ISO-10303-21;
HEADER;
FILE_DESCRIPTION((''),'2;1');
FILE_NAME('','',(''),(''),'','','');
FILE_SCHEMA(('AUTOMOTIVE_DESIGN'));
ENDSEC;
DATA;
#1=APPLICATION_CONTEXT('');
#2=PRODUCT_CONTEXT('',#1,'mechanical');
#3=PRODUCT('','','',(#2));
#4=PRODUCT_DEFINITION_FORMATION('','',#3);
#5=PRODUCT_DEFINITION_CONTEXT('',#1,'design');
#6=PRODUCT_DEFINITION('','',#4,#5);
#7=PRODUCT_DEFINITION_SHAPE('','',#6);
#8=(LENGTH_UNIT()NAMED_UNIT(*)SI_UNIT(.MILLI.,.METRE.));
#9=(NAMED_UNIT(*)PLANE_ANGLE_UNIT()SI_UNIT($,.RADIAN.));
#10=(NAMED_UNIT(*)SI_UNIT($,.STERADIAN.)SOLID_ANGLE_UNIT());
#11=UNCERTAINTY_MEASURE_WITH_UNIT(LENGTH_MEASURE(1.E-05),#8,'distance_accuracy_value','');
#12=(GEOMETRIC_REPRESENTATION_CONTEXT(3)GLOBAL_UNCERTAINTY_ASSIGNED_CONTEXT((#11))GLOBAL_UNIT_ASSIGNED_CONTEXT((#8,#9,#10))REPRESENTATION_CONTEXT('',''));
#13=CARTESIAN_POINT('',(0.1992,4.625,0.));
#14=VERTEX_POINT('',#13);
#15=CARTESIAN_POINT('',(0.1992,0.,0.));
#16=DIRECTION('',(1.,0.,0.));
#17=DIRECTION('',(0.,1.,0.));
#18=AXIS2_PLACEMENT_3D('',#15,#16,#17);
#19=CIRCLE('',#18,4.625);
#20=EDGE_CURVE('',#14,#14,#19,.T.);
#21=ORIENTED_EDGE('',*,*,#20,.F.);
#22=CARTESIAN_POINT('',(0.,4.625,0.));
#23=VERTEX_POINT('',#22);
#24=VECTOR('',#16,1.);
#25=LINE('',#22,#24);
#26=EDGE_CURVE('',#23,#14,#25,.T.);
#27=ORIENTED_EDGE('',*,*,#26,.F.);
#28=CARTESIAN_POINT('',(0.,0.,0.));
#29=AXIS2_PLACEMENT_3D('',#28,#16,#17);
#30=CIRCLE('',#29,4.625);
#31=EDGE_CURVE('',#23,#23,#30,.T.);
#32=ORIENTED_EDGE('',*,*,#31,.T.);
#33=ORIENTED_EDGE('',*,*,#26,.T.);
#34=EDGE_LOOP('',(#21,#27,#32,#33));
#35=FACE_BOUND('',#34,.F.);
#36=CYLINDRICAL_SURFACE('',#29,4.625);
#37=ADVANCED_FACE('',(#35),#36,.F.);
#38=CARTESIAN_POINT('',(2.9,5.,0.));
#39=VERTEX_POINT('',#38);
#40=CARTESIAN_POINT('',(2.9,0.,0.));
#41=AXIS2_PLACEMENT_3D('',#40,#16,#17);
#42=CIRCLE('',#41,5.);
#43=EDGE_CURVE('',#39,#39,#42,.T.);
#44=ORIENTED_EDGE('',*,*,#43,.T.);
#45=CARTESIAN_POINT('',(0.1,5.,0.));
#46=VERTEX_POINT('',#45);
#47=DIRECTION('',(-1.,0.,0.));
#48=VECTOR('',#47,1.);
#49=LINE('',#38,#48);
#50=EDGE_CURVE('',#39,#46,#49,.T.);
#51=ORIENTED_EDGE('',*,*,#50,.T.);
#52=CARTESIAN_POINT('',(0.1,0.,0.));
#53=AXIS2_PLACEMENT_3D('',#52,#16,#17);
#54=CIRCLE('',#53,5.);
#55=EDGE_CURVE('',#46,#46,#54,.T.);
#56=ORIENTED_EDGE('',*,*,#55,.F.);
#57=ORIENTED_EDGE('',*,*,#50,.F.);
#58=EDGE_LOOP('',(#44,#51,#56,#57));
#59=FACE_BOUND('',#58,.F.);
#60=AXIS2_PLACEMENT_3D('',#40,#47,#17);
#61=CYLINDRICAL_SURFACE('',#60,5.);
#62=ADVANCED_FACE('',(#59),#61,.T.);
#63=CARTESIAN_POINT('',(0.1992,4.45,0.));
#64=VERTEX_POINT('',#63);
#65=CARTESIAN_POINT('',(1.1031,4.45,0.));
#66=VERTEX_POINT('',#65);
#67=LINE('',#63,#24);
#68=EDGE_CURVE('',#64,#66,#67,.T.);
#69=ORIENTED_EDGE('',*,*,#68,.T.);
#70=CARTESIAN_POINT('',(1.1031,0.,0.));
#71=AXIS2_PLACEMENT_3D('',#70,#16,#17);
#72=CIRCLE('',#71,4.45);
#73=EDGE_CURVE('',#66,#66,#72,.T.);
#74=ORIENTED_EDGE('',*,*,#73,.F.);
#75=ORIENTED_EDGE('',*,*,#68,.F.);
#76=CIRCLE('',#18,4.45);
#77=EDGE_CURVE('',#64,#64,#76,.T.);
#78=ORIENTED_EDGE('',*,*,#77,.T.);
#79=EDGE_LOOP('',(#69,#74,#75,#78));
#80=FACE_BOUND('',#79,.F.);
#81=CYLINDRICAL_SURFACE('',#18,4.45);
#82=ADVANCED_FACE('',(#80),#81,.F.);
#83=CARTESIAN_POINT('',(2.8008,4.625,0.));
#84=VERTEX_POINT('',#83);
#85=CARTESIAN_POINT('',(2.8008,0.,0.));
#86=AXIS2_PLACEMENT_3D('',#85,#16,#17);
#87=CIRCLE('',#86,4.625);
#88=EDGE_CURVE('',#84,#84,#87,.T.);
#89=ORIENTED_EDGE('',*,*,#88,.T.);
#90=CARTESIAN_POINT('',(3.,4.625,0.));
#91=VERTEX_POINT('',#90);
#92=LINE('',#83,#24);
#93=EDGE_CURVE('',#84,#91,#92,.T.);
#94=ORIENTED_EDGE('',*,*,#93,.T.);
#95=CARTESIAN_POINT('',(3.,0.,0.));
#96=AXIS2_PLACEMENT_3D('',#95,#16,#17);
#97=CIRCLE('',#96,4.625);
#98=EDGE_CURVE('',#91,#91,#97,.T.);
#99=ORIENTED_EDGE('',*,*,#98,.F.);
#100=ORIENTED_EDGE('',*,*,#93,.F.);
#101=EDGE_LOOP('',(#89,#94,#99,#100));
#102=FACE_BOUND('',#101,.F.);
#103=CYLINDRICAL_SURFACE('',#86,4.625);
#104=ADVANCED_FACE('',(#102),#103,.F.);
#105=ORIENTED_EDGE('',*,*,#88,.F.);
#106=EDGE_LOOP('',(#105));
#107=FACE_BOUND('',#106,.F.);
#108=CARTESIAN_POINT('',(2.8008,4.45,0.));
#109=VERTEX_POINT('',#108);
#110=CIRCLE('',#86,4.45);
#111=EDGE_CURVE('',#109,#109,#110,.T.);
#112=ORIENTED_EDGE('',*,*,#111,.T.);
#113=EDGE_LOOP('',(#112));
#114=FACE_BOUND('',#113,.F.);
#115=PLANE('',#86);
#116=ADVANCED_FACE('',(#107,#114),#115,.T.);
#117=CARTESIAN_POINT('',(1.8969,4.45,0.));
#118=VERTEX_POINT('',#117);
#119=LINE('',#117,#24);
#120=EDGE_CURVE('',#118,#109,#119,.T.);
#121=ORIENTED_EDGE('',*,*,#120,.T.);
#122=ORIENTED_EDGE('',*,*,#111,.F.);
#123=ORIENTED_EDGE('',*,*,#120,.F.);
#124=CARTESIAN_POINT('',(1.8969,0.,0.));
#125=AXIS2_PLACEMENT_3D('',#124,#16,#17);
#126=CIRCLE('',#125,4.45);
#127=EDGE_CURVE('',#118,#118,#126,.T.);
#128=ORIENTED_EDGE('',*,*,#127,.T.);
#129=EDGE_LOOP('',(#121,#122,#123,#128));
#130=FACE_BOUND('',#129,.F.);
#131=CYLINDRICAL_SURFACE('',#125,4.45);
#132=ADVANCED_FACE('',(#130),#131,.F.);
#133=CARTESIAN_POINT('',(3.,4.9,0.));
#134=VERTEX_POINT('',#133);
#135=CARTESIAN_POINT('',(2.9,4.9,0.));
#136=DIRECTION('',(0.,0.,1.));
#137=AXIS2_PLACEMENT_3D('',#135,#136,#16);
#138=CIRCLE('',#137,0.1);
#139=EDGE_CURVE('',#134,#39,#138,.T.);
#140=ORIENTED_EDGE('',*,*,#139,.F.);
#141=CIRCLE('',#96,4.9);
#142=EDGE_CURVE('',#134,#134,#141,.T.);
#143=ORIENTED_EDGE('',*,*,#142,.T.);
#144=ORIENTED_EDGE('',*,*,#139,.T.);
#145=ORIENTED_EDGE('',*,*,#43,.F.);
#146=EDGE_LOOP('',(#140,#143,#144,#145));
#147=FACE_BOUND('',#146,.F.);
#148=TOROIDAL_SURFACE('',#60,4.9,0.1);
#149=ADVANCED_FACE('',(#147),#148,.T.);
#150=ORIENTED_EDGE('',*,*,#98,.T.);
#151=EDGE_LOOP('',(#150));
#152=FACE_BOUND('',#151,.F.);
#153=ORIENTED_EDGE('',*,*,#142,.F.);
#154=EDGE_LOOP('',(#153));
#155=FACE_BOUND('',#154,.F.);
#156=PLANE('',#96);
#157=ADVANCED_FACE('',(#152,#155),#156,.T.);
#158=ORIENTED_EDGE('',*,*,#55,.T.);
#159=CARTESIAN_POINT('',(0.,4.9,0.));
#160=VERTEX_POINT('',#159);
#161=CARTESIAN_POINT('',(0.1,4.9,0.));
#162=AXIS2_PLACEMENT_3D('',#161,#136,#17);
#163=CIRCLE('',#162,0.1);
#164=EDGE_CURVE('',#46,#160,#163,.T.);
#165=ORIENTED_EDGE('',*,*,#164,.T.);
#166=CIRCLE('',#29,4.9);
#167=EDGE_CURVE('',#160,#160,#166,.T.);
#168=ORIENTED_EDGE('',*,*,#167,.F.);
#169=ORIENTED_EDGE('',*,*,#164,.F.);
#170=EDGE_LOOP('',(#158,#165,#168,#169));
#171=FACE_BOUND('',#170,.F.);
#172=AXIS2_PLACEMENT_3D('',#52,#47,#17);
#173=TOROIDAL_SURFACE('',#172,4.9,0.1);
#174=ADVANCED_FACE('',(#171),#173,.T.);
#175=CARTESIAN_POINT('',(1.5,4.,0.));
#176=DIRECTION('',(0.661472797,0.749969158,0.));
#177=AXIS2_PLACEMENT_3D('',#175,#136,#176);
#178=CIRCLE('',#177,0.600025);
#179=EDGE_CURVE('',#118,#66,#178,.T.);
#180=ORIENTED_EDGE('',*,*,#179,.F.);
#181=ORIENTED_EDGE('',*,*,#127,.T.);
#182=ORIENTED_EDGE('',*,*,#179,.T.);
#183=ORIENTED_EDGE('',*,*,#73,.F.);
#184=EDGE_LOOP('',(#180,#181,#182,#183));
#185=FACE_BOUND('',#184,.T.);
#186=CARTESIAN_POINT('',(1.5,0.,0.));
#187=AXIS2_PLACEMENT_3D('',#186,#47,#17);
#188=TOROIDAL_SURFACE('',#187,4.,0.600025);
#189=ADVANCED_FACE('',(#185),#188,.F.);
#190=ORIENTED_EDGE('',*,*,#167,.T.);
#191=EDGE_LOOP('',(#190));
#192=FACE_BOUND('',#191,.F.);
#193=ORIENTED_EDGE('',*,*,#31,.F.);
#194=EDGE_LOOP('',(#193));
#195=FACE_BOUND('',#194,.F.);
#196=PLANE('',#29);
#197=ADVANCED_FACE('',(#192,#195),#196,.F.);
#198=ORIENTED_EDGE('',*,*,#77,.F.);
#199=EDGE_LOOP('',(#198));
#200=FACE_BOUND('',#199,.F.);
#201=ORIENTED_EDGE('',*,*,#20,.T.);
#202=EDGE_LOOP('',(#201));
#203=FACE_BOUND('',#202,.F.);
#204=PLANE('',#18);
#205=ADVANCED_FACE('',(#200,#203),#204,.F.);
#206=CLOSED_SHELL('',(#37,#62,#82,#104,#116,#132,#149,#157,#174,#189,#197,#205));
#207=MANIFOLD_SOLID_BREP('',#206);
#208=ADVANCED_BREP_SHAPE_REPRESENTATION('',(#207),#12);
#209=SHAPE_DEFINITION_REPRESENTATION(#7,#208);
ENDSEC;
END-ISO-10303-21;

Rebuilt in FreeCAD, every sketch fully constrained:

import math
import FreeCAD as App
import Part
import Sketcher

doc = App.newDocument("Part")
params = doc.addObject("Spreadsheet::Sheet", "Params")
for row, (alias, value) in enumerate([
    ("sketch1_radius", "0.6 mm"),
    ("sketch1_radius2", "0.1 mm"),
    ("sketch1_width", "2.8 mm"),
    ("revolution_angle", "360 deg"),
], start=1):
    params.set(f"A{row}", alias)
    params.set(f"B{row}", "=" + value)
    params.setAlias(f"B{row}", alias)

body = doc.addObject("PartDesign::Body", "Body")

sketch1 = body.newObject("Sketcher::SketchObject", "Sketch")
sketch1.AttachmentSupport = (doc.getObject("XY_Plane"), [""])
sketch1.MapMode = "FlatFace"
sketch1.addGeometry(Part.LineSegment(App.Vector(0, 4.9, 0), App.Vector(0, 4.62, 0)), False)
sketch1.addGeometry(Part.LineSegment(App.Vector(0, 4.62, 0), App.Vector(0.2, 4.62, 0)), False)
sketch1.addGeometry(Part.LineSegment(App.Vector(0.2, 4.62, 0), App.Vector(0.2, 4.45, 0)), False)
sketch1.addGeometry(Part.LineSegment(App.Vector(0.2, 4.45, 0), App.Vector(1.1, 4.45, 0)), False)
sketch1.addGeometry(Part.ArcOfCircle(Part.Circle(App.Vector(1.5, 4, 0), App.Vector(0, 0, 1), 0.6), math.radians(49), math.radians(131)), False)
sketch1.addGeometry(Part.LineSegment(App.Vector(1.9, 4.45, 0), App.Vector(2.8, 4.45, 0)), False)
sketch1.addGeometry(Part.LineSegment(App.Vector(2.8, 4.45, 0), App.Vector(2.8, 4.62, 0)), False)
sketch1.addGeometry(Part.LineSegment(App.Vector(2.8, 4.62, 0), App.Vector(3, 4.62, 0)), False)
sketch1.addGeometry(Part.LineSegment(App.Vector(3, 4.62, 0), App.Vector(3, 4.9, 0)), False)
sketch1.addGeometry(Part.ArcOfCircle(Part.Circle(App.Vector(2.9, 4.9, 0), App.Vector(0, 0, 1), 0.1), math.radians(0), math.radians(90)), False)
sketch1.addGeometry(Part.LineSegment(App.Vector(2.9, 5, 0), App.Vector(0.1, 5, 0)), False)
sketch1.addGeometry(Part.ArcOfCircle(Part.Circle(App.Vector(0.1, 4.9, 0), App.Vector(0, 0, 1), 0.1), math.radians(90), math.radians(180)), False)
sketch1.addConstraint(Sketcher.Constraint("Coincident", 0, 2, 1, 1))
sketch1.addConstraint(Sketcher.Constraint("Coincident", 1, 2, 2, 1))
sketch1.addConstraint(Sketcher.Constraint("Coincident", 2, 2, 3, 1))
sketch1.addConstraint(Sketcher.Constraint("Coincident", 3, 2, 4, 2))
sketch1.addConstraint(Sketcher.Constraint("Coincident", 4, 1, 5, 1))
sketch1.addConstraint(Sketcher.Constraint("Coincident", 5, 2, 6, 1))
sketch1.addConstraint(Sketcher.Constraint("Coincident", 6, 2, 7, 1))
sketch1.addConstraint(Sketcher.Constraint("Coincident", 7, 2, 8, 1))
sketch1.addConstraint(Sketcher.Constraint("Tangent", 8, 2, 9, 1))
sketch1.addConstraint(Sketcher.Constraint("Tangent", 9, 2, 10, 1))
sketch1.addConstraint(Sketcher.Constraint("Tangent", 10, 2, 11, 1))
sketch1.addConstraint(Sketcher.Constraint("Tangent", 11, 2, 0, 1))
sketch1.addConstraint(Sketcher.Constraint("Vertical", 0))
sketch1.addConstraint(Sketcher.Constraint("Horizontal", 1))
sketch1.addConstraint(Sketcher.Constraint("Vertical", 2))
sketch1.addConstraint(Sketcher.Constraint("Horizontal", 3))
sketch1.addConstraint(Sketcher.Constraint("Horizontal", 5))
sketch1.addConstraint(Sketcher.Constraint("Vertical", 6))
sketch1.addConstraint(Sketcher.Constraint("Horizontal", 7))
sketch1.addConstraint(Sketcher.Constraint("Vertical", 8))
sketch1.addConstraint(Sketcher.Constraint("Horizontal", 10))
sketch1.addConstraint(Sketcher.Constraint("Equal", 9, 11))
sketch1.addConstraint(Sketcher.Constraint("PointOnObject", 0, 2, -2))
sketch1.addConstraint(Sketcher.Constraint("Horizontal", 3, 2, 4, 1))
sketch1.addConstraint(Sketcher.Constraint("Horizontal", 1, 2, 6, 2))
sketch1.addConstraint(Sketcher.Constraint("Equal", 3, 5))
sketch1.addConstraint(Sketcher.Constraint("Equal", 1, 7))
sketch1.addConstraint(Sketcher.Constraint("Radius", 4, 0.6))
sketch1.addConstraint(Sketcher.Constraint("Radius", 9, 0.1))
sketch1.addConstraint(Sketcher.Constraint("DistanceX", 10, 2, 10, 1, 2.8))
sketch1.addConstraint(Sketcher.Constraint("DistanceY", -1, 1, 4, 3, 4.0))
sketch1.addConstraint(Sketcher.Constraint("DistanceY", -1, 1, 9, 2, 5.0))
sketch1.addConstraint(Sketcher.Constraint("DistanceX", 3, 1, 3, 2, 0.904))
sketch1.addConstraint(Sketcher.Constraint("DistanceY", 0, 2, 0, 1, 0.275))
sketch1.addConstraint(Sketcher.Constraint("DistanceY", 2, 2, 2, 1, 0.175))
sketch1.setExpression("Constraints[27]", "Params.sketch1_radius")
sketch1.setExpression("Constraints[28]", "Params.sketch1_radius2")
sketch1.setExpression("Constraints[29]", "Params.sketch1_width")
revolution = body.newObject("PartDesign::Revolution", "Revolution")
revolution.Profile = sketch1
revolution.ReferenceAxis = (sketch1, ["H_Axis"])
revolution.setExpression("Angle", "Params.revolution_angle")

doc.recompute()
